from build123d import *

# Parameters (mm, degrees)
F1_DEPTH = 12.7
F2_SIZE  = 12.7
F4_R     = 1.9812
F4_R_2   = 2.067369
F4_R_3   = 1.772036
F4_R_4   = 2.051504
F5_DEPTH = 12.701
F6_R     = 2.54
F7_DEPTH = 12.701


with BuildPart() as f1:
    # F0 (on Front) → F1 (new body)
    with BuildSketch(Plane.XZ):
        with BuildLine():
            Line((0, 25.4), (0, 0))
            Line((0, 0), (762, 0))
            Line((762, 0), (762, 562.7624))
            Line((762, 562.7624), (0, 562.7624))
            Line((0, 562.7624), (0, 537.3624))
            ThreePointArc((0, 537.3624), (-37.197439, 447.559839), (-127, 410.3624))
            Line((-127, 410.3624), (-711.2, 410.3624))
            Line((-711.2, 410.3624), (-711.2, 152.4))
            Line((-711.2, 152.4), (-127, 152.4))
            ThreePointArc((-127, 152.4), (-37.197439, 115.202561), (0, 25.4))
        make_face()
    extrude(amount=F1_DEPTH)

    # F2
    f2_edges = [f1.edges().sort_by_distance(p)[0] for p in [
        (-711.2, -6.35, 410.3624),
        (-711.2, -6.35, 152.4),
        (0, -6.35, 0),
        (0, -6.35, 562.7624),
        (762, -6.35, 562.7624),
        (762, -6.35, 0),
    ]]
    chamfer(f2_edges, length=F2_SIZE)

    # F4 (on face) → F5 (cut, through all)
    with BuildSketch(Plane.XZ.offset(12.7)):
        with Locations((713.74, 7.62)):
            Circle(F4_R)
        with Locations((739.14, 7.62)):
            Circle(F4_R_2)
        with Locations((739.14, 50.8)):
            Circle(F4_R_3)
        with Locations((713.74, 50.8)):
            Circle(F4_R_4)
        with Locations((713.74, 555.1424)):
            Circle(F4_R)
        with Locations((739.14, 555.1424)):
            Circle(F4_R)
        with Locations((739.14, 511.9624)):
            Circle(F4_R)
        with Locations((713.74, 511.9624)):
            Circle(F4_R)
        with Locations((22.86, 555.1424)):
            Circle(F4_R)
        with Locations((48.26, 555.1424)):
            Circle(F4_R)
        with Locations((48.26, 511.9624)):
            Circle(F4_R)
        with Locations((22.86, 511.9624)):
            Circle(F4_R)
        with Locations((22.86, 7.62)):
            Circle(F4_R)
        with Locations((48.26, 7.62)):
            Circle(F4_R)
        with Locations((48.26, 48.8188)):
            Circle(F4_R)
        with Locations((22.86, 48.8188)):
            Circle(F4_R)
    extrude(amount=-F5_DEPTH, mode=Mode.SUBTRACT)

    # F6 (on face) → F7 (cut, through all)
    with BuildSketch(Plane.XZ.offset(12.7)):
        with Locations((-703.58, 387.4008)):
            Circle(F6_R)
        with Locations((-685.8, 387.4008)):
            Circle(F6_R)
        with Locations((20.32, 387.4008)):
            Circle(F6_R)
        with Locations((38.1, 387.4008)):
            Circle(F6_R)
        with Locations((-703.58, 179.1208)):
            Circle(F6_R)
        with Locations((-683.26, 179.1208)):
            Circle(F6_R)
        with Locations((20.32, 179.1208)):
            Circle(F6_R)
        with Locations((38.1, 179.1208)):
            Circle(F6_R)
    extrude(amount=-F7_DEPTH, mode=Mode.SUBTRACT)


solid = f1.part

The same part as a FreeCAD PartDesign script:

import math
import FreeCAD as App
import Part
import Sketcher
Q = App.Units.Quantity


def edges_at(feature, points):
    """Names of the edges that pass closest to the given points."""
    edges = feature.Shape.Edges
    near = lambda p: min(range(len(edges)), key=lambda i: edges[i].distToShape(Part.Vertex(*p))[0])
    return sorted({f"Edge{near(p) + 1}" for p in points})

doc = App.newDocument("Part")
body = doc.addObject("PartDesign::Body", "Body")

sketch1 = doc.addObject("Sketcher::SketchObject", "Sketch")
body.addObject(sketch1)
sketch1.AttachmentSupport = (doc.XZ_Plane, [""])
sketch1.MapMode = "FlatFace"
sketch1.addGeometry(Part.LineSegment(App.Vector(0, 25, 0), App.Vector(0, 0, 0)), False)
sketch1.addGeometry(Part.LineSegment(App.Vector(0, 0, 0), App.Vector(762, 0, 0)), False)
sketch1.addGeometry(Part.LineSegment(App.Vector(762, 0, 0), App.Vector(762, 563, 0)), False)
sketch1.addGeometry(Part.LineSegment(App.Vector(762, 563, 0), App.Vector(0, 563, 0)), False)
sketch1.addGeometry(Part.LineSegment(App.Vector(0, 563, 0), App.Vector(0, 537, 0)), False)
sketch1.addGeometry(Part.ArcOfCircle(Part.Circle(App.Vector(-127, 537, 0), App.Vector(0, 0, 1), 127), math.radians(-90), math.radians(0)), False)
sketch1.addGeometry(Part.LineSegment(App.Vector(-127, 410, 0), App.Vector(-711, 410, 0)), False)
sketch1.addGeometry(Part.LineSegment(App.Vector(-711, 410, 0), App.Vector(-711, 152, 0)), False)
sketch1.addGeometry(Part.LineSegment(App.Vector(-711, 152, 0), App.Vector(-127, 152, 0)), False)
sketch1.addGeometry(Part.ArcOfCircle(Part.Circle(App.Vector(-127, 25, 0), App.Vector(0, 0, 1), 127), math.radians(0), math.radians(90)), False)
sketch1.addConstraint(Sketcher.Constraint("Coincident", 0, 2, 1, 1))
sketch1.addConstraint(Sketcher.Constraint("Coincident", 1, 2, 2, 1))
sketch1.addConstraint(Sketcher.Constraint("Coincident", 2, 2, 3, 1))
sketch1.addConstraint(Sketcher.Constraint("Coincident", 3, 2, 4, 1))
sketch1.addConstraint(Sketcher.Constraint("Tangent", 4, 2, 5, 2))
sketch1.addConstraint(Sketcher.Constraint("Tangent", 5, 1, 6, 1))
sketch1.addConstraint(Sketcher.Constraint("Coincident", 6, 2, 7, 1))
sketch1.addConstraint(Sketcher.Constraint("Coincident", 7, 2, 8, 1))
sketch1.addConstraint(Sketcher.Constraint("Tangent", 8, 2, 9, 2))
sketch1.addConstraint(Sketcher.Constraint("Tangent", 9, 1, 0, 1))
sketch1.addConstraint(Sketcher.Constraint("Vertical", 0))
sketch1.addConstraint(Sketcher.Constraint("Horizontal", 1))
sketch1.addConstraint(Sketcher.Constraint("Vertical", 2))
sketch1.addConstraint(Sketcher.Constraint("Horizontal", 3))
sketch1.addConstraint(Sketcher.Constraint("Vertical", 4))
sketch1.addConstraint(Sketcher.Constraint("Horizontal", 6))
sketch1.addConstraint(Sketcher.Constraint("Vertical", 7))
sketch1.addConstraint(Sketcher.Constraint("Horizontal", 8))
sketch1.addConstraint(Sketcher.Constraint("Coincident", 0, 2, -1, 1))
sketch1.addConstraint(Sketcher.Constraint("Equal", 5, 9))
sketch1.addConstraint(Sketcher.Constraint("PointOnObject", 3, 2, -2))
sketch1.addConstraint(Sketcher.Constraint("Equal", 0, 4))
sketch1.addConstraint(Sketcher.Constraint("Radius", 5, Q("5 in")))
sketch1.addConstraint(Sketcher.Constraint("DistanceX", 1, 1, 1, 2, Q("30 in")))
sketch1.addConstraint(Sketcher.Constraint("DistanceX", 6, 2, 6, 1, Q("23 in")))
sketch1.addConstraint(Sketcher.Constraint("DistanceY", 0, 2, 0, 1, Q("1 in")))
sketch1.addConstraint(Sketcher.Constraint("DistanceY", 2, 1, 2, 2, Q("22.156 in")))
pad1 = doc.addObject("PartDesign::Pad", "Pad")
body.addObject(pad1)
pad1.Profile = sketch1
pad1.Length = Q("0.5 in")
doc.recompute()

chamfer = doc.addObject("PartDesign::Chamfer", "Chamfer")
body.addObject(chamfer)
chamfer.Base = (pad1, edges_at(pad1, [
    (-711.2, -6.35, 410.362),
    (-711.2, -6.35, 152.4),
    (0, -6.35, 0),
    (0, -6.35, 562.762),
    (762, -6.35, 562.762),
    (762, -6.35, 0),
]))
chamfer.Size = Q("0.5 in")

sketch2 = doc.addObject("Sketcher::SketchObject", "Sketch001")
body.addObject(sketch2)
sketch2.AttachmentSupport = (doc.XZ_Plane, [""])
sketch2.MapMode = "FlatFace"
sketch2.AttachmentOffset = App.Placement(App.Vector(0, 0, 0.5 * 25.4), App.Rotation())
sketch2.addGeometry(Part.Circle(App.Vector(713.7, 7.6, 0), App.Vector(0, 0, 1), 2), False)
sketch2.addGeometry(Part.Circle(App.Vector(739.1, 7.6, 0), App.Vector(0, 0, 1), 2.1), False)
sketch2.addGeometry(Part.Circle(App.Vector(739.1, 50.8, 0), App.Vector(0, 0, 1), 1.8), False)
sketch2.addGeometry(Part.Circle(App.Vector(713.7, 50.8, 0), App.Vector(0, 0, 1), 2.1), False)
sketch2.addGeometry(Part.Circle(App.Vector(713.7, 555.1, 0), App.Vector(0, 0, 1), 2), False)
sketch2.addGeometry(Part.Circle(App.Vector(739.1, 555.1, 0), App.Vector(0, 0, 1), 2), False)
sketch2.addGeometry(Part.Circle(App.Vector(739.1, 512, 0), App.Vector(0, 0, 1), 2), False)
sketch2.addGeometry(Part.Circle(App.Vector(713.7, 512, 0), App.Vector(0, 0, 1), 2), False)
sketch2.addGeometry(Part.Circle(App.Vector(22.9, 555.1, 0), App.Vector(0, 0, 1), 2), False)
sketch2.addGeometry(Part.Circle(App.Vector(48.3, 555.1, 0), App.Vector(0, 0, 1), 2), False)
sketch2.addGeometry(Part.Circle(App.Vector(48.3, 512, 0), App.Vector(0, 0, 1), 2), False)
sketch2.addGeometry(Part.Circle(App.Vector(22.9, 512, 0), App.Vector(0, 0, 1), 2), False)
sketch2.addGeometry(Part.Circle(App.Vector(22.9, 7.6, 0), App.Vector(0, 0, 1), 2), False)
sketch2.addGeometry(Part.Circle(App.Vector(48.3, 7.6, 0), App.Vector(0, 0, 1), 2), False)
sketch2.addGeometry(Part.Circle(App.Vector(48.3, 48.8, 0), App.Vector(0, 0, 1), 2), False)
sketch2.addGeometry(Part.Circle(App.Vector(22.9, 48.8, 0), App.Vector(0, 0, 1), 2), False)
sketch2.addConstraint(Sketcher.Constraint("Equal", 0, 4))
sketch2.addConstraint(Sketcher.Constraint("Equal", 4, 5))
sketch2.addConstraint(Sketcher.Constraint("Equal", 5, 6))
sketch2.addConstraint(Sketcher.Constraint("Equal", 6, 7))
sketch2.addConstraint(Sketcher.Constraint("Equal", 7, 8))
sketch2.addConstraint(Sketcher.Constraint("Equal", 8, 9))
sketch2.addConstraint(Sketcher.Constraint("Equal", 9, 10))
sketch2.addConstraint(Sketcher.Constraint("Equal", 10, 11))
sketch2.addConstraint(Sketcher.Constraint("Equal", 11, 12))
sketch2.addConstraint(Sketcher.Constraint("Equal", 12, 13))
sketch2.addConstraint(Sketcher.Constraint("Equal", 13, 14))
sketch2.addConstraint(Sketcher.Constraint("Equal", 14, 15))
sketch2.addConstraint(Sketcher.Constraint("Horizontal", 0, 3, 1, 3))
sketch2.addConstraint(Sketcher.Constraint("Horizontal", 2, 3, 3, 3))
sketch2.addConstraint(Sketcher.Constraint("Horizontal", 4, 3, 5, 3))
sketch2.addConstraint(Sketcher.Constraint("Horizontal", 6, 3, 7, 3))
sketch2.addConstraint(Sketcher.Constraint("Horizontal", 5, 3, 8, 3))
sketch2.addConstraint(Sketcher.Constraint("Horizontal", 8, 3, 9, 3))
sketch2.addConstraint(Sketcher.Constraint("Horizontal", 7, 3, 10, 3))
sketch2.addConstraint(Sketcher.Constraint("Horizontal", 10, 3, 11, 3))
sketch2.addConstraint(Sketcher.Constraint("Horizontal", 1, 3, 12, 3))
sketch2.addConstraint(Sketcher.Constraint("Horizontal", 12, 3, 13, 3))
sketch2.addConstraint(Sketcher.Constraint("Horizontal", 14, 3, 15, 3))
sketch2.addConstraint(Sketcher.Constraint("Vertical", 1, 3, 2, 3))
sketch2.addConstraint(Sketcher.Constraint("Vertical", 0, 3, 3, 3))
sketch2.addConstraint(Sketcher.Constraint("Vertical", 3, 3, 4, 3))
sketch2.addConstraint(Sketcher.Constraint("Vertical", 2, 3, 5, 3))
sketch2.addConstraint(Sketcher.Constraint("Vertical", 5, 3, 6, 3))
sketch2.addConstraint(Sketcher.Constraint("Vertical", 4, 3, 7, 3))
sketch2.addConstraint(Sketcher.Constraint("Vertical", 9, 3, 10, 3))
sketch2.addConstraint(Sketcher.Constraint("Vertical", 8, 3, 11, 3))
sketch2.addConstraint(Sketcher.Constraint("Vertical", 11, 3, 12, 3))
sketch2.addConstraint(Sketcher.Constraint("Vertical", 10, 3, 13, 3))
sketch2.addConstraint(Sketcher.Constraint("Vertical", 13, 3, 14, 3))
sketch2.addConstraint(Sketcher.Constraint("Vertical", 12, 3, 15, 3))
sketch2.addConstraint(Sketcher.Constraint("Diameter", 0, Q("0.156 in")))
sketch2.addConstraint(Sketcher.Constraint("DistanceY", -1, 1, 2, 3, Q("2 in")))
sketch2.addConstraint(Sketcher.Constraint("DistanceX", 0, 3, 1, 3, Q("1 in")))
sketch2.addConstraint(Sketcher.Constraint("DistanceX", 8, 3, 9, 3, Q("1 in")))
sketch2.addConstraint(Sketcher.Constraint("DistanceX", -1, 1, 0, 3, Q("28.1 in")))
sketch2.addConstraint(Sketcher.Constraint("DistanceY", -1, 1, 0, 3, Q("0.3 in")))
sketch2.addConstraint(Sketcher.Constraint("DistanceX", -1, 1, 8, 3, Q("0.9 in")))
sketch2.addConstraint(Sketcher.Constraint("DistanceY", 6, 3, 5, 3, Q("1.7 in")))
sketch2.addConstraint(Sketcher.Constraint("Diameter", 2, Q("3.544072 mm")))
sketch2.addConstraint(Sketcher.Constraint("DistanceY", -1, 1, 4, 3, Q("21.856 in")))
sketch2.addConstraint(Sketcher.Constraint("DistanceY", -1, 1, 14, 3, Q("1.922 in")))
sketch2.addConstraint(Sketcher.Constraint("Diameter", 1, Q("4.134738 mm")))
sketch2.addConstraint(Sketcher.Constraint("Diameter", 3, Q("4.103008 mm")))
pocket1 = doc.addObject("PartDesign::Pocket", "Pocket")
body.addObject(pocket1)
pocket1.Profile = sketch2
pocket1.Type = "ThroughAll"

sketch3 = doc.addObject("Sketcher::SketchObject", "Sketch002")
body.addObject(sketch3)
sketch3.AttachmentSupport = (doc.XZ_Plane, [""])
sketch3.MapMode = "FlatFace"
sketch3.AttachmentOffset = App.Placement(App.Vector(0, 0, 0.5 * 25.4), App.Rotation())
sketch3.addGeometry(Part.Circle(App.Vector(-703.6, 387.4, 0), App.Vector(0, 0, 1), 2.5), False)
sketch3.addGeometry(Part.Circle(App.Vector(-685.8, 387.4, 0), App.Vector(0, 0, 1), 2.5), False)
sketch3.addGeometry(Part.Circle(App.Vector(20.3, 387.4, 0), App.Vector(0, 0, 1), 2.5), False)
sketch3.addGeometry(Part.Circle(App.Vector(38.1, 387.4, 0), App.Vector(0, 0, 1), 2.5), False)
sketch3.addGeometry(Part.Circle(App.Vector(-703.6, 179.1, 0), App.Vector(0, 0, 1), 2.5), False)
sketch3.addGeometry(Part.Circle(App.Vector(-683.3, 179.1, 0), App.Vector(0, 0, 1), 2.5), False)
sketch3.addGeometry(Part.Circle(App.Vector(20.3, 179.1, 0), App.Vector(0, 0, 1), 2.5), False)
sketch3.addGeometry(Part.Circle(App.Vector(38.1, 179.1, 0), App.Vector(0, 0, 1), 2.5), False)
sketch3.addConstraint(Sketcher.Constraint("Equal", 0, 1))
sketch3.addConstraint(Sketcher.Constraint("Equal", 1, 2))
sketch3.addConstraint(Sketcher.Constraint("Equal", 2, 3))
sketch3.addConstraint(Sketcher.Constraint("Equal", 3, 4))
sketch3.addConstraint(Sketcher.Constraint("Equal", 4, 5))
sketch3.addConstraint(Sketcher.Constraint("Equal", 5, 6))
sketch3.addConstraint(Sketcher.Constraint("Equal", 6, 7))
sketch3.addConstraint(Sketcher.Constraint("Horizontal", 0, 3, 1, 3))
sketch3.addConstraint(Sketcher.Constraint("Horizontal", 1, 3, 2, 3))
sketch3.addConstraint(Sketcher.Constraint("Horizontal", 2, 3, 3, 3))
sketch3.addConstraint(Sketcher.Constraint("Horizontal", 4, 3, 5, 3))
sketch3.addConstraint(Sketcher.Constraint("Horizontal", 5, 3, 6, 3))
sketch3.addConstraint(Sketcher.Constraint("Horizontal", 6, 3, 7, 3))
sketch3.addConstraint(Sketcher.Constraint("Vertical", 0, 3, 4, 3))
sketch3.addConstraint(Sketcher.Constraint("Vertical", 2, 3, 6, 3))
sketch3.addConstraint(Sketcher.Constraint("Vertical", 3, 3, 7, 3))
sketch3.addConstraint(Sketcher.Constraint("Diameter", 0, Q("0.2 in")))
sketch3.addConstraint(Sketcher.Constraint("DistanceX", 1, 3, -1, 1, Q("27 in")))
sketch3.addConstraint(Sketcher.Constraint("DistanceX", 0, 3, -1, 1, Q("27.7 in")))
sketch3.addConstraint(Sketcher.Constraint("DistanceX", -1, 1, 2, 3, Q("0.8 in")))
sketch3.addConstraint(Sketcher.Constraint("DistanceX", -1, 1, 3, 3, Q("1.5 in")))
sketch3.addConstraint(Sketcher.Constraint("DistanceX", 5, 3, -1, 1, Q("26.9 in")))
sketch3.addConstraint(Sketcher.Constraint("DistanceY", 4, 3, 0, 3, Q("8.2 in")))
sketch3.addConstraint(Sketcher.Constraint("DistanceY", -1, 1, 0, 3, Q("15.252 in")))
pocket2 = doc.addObject("PartDesign::Pocket", "Pocket001")
body.addObject(pocket2)
pocket2.Profile = sketch3
pocket2.Type = "ThroughAll"

doc.recompute()
